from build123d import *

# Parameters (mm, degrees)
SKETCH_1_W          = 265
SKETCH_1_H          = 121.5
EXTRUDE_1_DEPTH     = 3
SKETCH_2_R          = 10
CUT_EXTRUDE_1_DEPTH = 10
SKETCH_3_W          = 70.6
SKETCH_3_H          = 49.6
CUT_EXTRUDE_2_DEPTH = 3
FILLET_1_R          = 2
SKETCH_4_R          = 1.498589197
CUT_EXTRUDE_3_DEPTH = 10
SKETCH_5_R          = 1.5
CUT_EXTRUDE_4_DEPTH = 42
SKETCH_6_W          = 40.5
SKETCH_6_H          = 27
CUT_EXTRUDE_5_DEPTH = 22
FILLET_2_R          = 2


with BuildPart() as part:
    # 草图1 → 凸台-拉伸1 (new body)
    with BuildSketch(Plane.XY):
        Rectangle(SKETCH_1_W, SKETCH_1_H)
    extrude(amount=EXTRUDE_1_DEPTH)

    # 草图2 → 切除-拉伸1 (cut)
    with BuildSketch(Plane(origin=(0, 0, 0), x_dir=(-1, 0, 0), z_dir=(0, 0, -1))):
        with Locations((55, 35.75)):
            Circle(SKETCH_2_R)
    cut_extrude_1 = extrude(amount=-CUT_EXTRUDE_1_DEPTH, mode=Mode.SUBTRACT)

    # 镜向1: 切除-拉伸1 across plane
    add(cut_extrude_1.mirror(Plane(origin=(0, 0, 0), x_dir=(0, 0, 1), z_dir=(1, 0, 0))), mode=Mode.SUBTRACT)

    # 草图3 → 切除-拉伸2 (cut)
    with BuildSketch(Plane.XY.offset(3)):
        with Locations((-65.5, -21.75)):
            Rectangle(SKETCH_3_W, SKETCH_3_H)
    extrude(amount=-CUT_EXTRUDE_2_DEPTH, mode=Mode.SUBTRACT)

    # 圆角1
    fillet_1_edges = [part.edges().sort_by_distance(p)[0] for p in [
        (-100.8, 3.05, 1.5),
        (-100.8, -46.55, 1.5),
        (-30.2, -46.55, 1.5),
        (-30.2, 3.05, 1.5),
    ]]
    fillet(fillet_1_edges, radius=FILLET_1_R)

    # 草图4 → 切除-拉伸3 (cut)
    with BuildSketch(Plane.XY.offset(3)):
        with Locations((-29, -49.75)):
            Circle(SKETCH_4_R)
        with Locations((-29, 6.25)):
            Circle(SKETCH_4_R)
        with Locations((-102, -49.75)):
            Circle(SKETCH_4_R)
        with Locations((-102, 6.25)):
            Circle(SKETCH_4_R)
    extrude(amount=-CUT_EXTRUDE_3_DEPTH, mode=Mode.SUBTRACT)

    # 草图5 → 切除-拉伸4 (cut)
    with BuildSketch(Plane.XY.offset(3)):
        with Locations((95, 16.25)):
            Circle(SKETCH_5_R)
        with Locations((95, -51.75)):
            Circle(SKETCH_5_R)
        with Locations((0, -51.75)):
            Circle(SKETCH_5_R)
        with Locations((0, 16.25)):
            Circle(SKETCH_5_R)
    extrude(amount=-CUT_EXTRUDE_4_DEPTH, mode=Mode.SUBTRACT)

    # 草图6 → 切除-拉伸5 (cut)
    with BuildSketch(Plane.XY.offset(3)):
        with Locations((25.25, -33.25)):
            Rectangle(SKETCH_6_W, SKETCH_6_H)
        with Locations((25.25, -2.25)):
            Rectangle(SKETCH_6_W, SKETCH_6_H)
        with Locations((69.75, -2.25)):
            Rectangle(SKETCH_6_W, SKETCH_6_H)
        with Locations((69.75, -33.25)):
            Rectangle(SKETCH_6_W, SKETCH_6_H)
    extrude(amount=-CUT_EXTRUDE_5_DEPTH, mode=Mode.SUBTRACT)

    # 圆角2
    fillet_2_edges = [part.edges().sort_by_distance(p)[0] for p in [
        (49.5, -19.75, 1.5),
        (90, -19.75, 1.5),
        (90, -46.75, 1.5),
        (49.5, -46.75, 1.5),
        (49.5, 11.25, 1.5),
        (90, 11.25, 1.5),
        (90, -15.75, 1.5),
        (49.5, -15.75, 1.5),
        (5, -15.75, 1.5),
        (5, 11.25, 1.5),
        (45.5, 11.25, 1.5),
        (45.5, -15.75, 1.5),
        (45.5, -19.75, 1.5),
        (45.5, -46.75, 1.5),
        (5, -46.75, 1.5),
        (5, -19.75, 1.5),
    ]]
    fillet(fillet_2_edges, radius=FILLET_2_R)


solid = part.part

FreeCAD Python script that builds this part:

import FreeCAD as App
import Part
import Sketcher


def edges_at(feature, points):
    """Names of the edges that pass closest to the given points."""
    edges = feature.Shape.Edges
    near = lambda p: min(range(len(edges)), key=lambda i: edges[i].distToShape(Part.Vertex(*p))[0])
    return sorted({f"Edge{near(p) + 1}" for p in points})

doc = App.newDocument("Part")
body = doc.addObject("PartDesign::Body", "Body")

sketch1 = doc.addObject("Sketcher::SketchObject", "Sketch")
body.addObject(sketch1)
sketch1.AttachmentSupport = (doc.XY_Plane, [""])
sketch1.MapMode = "FlatFace"
sketch1.addGeometry(Part.LineSegment(App.Vector(-132, 61, 0), App.Vector(-132, -61, 0)), False)
sketch1.addGeometry(Part.LineSegment(App.Vector(-132, -61, 0), App.Vector(132, -61, 0)), False)
sketch1.addGeometry(Part.LineSegment(App.Vector(132, -61, 0), App.Vector(132, 61, 0)), False)
sketch1.addGeometry(Part.LineSegment(App.Vector(132, 61, 0), App.Vector(-132, 61, 0)), False)
sketch1.addConstraint(Sketcher.Constraint("Coincident", 0, 2, 1, 1))
sketch1.addConstraint(Sketcher.Constraint("Coincident", 1, 2, 2, 1))
sketch1.addConstraint(Sketcher.Constraint("Coincident", 2, 2, 3, 1))
sketch1.addConstraint(Sketcher.Constraint("Coincident", 3, 2, 0, 1))
sketch1.addConstraint(Sketcher.Constraint("Vertical", 0))
sketch1.addConstraint(Sketcher.Constraint("Horizontal", 1))
sketch1.addConstraint(Sketcher.Constraint("Vertical", 2))
sketch1.addConstraint(Sketcher.Constraint("Horizontal", 3))
sketch1.addConstraint(Sketcher.Constraint("Symmetric", 0, 2, 2, 2, -1, 1))
sketch1.addConstraint(Sketcher.Constraint("DistanceX", 1, 1, 1, 2, 265.0))
sketch1.addConstraint(Sketcher.Constraint("DistanceY", 0, 2, 0, 1, 121.5))
pad1 = doc.addObject("PartDesign::Pad", "Pad")
body.addObject(pad1)
pad1.Profile = sketch1
pad1.Length = 3

sketch2 = doc.addObject("Sketcher::SketchObject", "Sketch001")
body.addObject(sketch2)
sketch2.AttachmentSupport = (doc.XY_Plane, [""])
sketch2.MapMode = "FlatFace"
sketch2.addGeometry(Part.Circle(App.Vector(-55, 36, 0), App.Vector(0, 0, 1), 10), False)
sketch2.addConstraint(Sketcher.Constraint("Diameter", 0, 20.0))
sketch2.addConstraint(Sketcher.Constraint("DistanceX", 0, 3, -1, 1, 55.0))
sketch2.addConstraint(Sketcher.Constraint("DistanceY", -1, 1, 0, 3, 35.75))
pocket1 = doc.addObject("PartDesign::Pocket", "Pocket")
body.addObject(pocket1)
pocket1.Profile = sketch2
pocket1.Length = 10
pocket1.Reversed = True
doc.recompute()

mirrored = doc.addObject("PartDesign::Mirrored", "Mirrored")
body.addObject(mirrored)
mirrored.Originals = [pocket1]
mirrored.MirrorPlane = (doc.YZ_Plane, [""])
body.Tip = mirrored

sketch3 = doc.addObject("Sketcher::SketchObject", "Sketch002")
body.addObject(sketch3)
sketch3.AttachmentSupport = (doc.XY_Plane, [""])
sketch3.MapMode = "FlatFace"
sketch3.AttachmentOffset = App.Placement(App.Vector(0, 0, 3), App.Rotation())
sketch3.addGeometry(Part.LineSegment(App.Vector(-101, 3, 0), App.Vector(-101, -47, 0)), False)
sketch3.addGeometry(Part.LineSegment(App.Vector(-101, -47, 0), App.Vector(-30, -47, 0)), False)
sketch3.addGeometry(Part.LineSegment(App.Vector(-30, -47, 0), App.Vector(-30, 3, 0)), False)
sketch3.addGeometry(Part.LineSegment(App.Vector(-30, 3, 0), App.Vector(-101, 3, 0)), False)
sketch3.addConstraint(Sketcher.Constraint("Coincident", 0, 2, 1, 1))
sketch3.addConstraint(Sketcher.Constraint("Coincident", 1, 2, 2, 1))
sketch3.addConstraint(Sketcher.Constraint("Coincident", 2, 2, 3, 1))
sketch3.addConstraint(Sketcher.Constraint("Coincident", 3, 2, 0, 1))
sketch3.addConstraint(Sketcher.Constraint("Vertical", 0))
sketch3.addConstraint(Sketcher.Constraint("Horizontal", 1))
sketch3.addConstraint(Sketcher.Constraint("Vertical", 2))
sketch3.addConstraint(Sketcher.Constraint("Horizontal", 3))
sketch3.addConstraint(Sketcher.Constraint("DistanceX", 1, 1, 1, 2, 70.6))
sketch3.addConstraint(Sketcher.Constraint("DistanceY", 0, 2, 0, 1, 49.6))
sketch3.addConstraint(Sketcher.Constraint("DistanceX", 0, 2, -1, 1, 100.8))
sketch3.addConstraint(Sketcher.Constraint("DistanceY", 0, 2, -1, 1, 46.55))
pocket2 = doc.addObject("PartDesign::Pocket", "Pocket001")
body.addObject(pocket2)
pocket2.Profile = sketch3
pocket2.Length = 3
doc.recompute()

fillet = doc.addObject("PartDesign::Fillet", "Fillet")
body.addObject(fillet)
fillet.Base = (pocket2, edges_at(pocket2, [
    (-100.8, 3.05, 1.5),
    (-100.8, -46.55, 1.5),
    (-30.2, -46.55, 1.5),
    (-30.2, 3.05, 1.5),
]))
fillet.Radius = 2

sketch4 = doc.addObject("Sketcher::SketchObject", "Sketch003")
body.addObject(sketch4)
sketch4.AttachmentSupport = (doc.XY_Plane, [""])
sketch4.MapMode = "FlatFace"
sketch4.AttachmentOffset = App.Placement(App.Vector(0, 0, 3), App.Rotation())
sketch4.addGeometry(Part.Circle(App.Vector(-29, -49.8, 0), App.Vector(0, 0, 1), 1.5), False)
sketch4.addGeometry(Part.Circle(App.Vector(-29, 6.2, 0), App.Vector(0, 0, 1), 1.5), False)
sketch4.addGeometry(Part.Circle(App.Vector(-102, -49.8, 0), App.Vector(0, 0, 1), 1.5), False)
sketch4.addGeometry(Part.Circle(App.Vector(-102, 6.2, 0), App.Vector(0, 0, 1), 1.5), False)
sketch4.addConstraint(Sketcher.Constraint("Equal", 0, 1))
sketch4.addConstraint(Sketcher.Constraint("Equal", 1, 2))
sketch4.addConstraint(Sketcher.Constraint("Equal", 2, 3))
sketch4.addConstraint(Sketcher.Constraint("Horizontal", 0, 3, 2, 3))
sketch4.addConstraint(Sketcher.Constraint("Horizontal", 1, 3, 3, 3))
sketch4.addConstraint(Sketcher.Constraint("Vertical", 0, 3, 1, 3))
sketch4.addConstraint(Sketcher.Constraint("Vertical", 2, 3, 3, 3))
sketch4.addConstraint(Sketcher.Constraint("DistanceX", 0, 3, -1, 1, 29.0))
sketch4.addConstraint(Sketcher.Constraint("DistanceX", 2, 3, -1, 1, 102.0))
sketch4.addConstraint(Sketcher.Constraint("DistanceY", 0, 3, 1, 3, 56.0))
sketch4.addConstraint(Sketcher.Constraint("Diameter", 0, 2.997178))
sketch4.addConstraint(Sketcher.Constraint("DistanceY", 0, 3, -1, 1, 49.75))
pocket3 = doc.addObject("PartDesign::Pocket", "Pocket002")
body.addObject(pocket3)
pocket3.Profile = sketch4
pocket3.Length = 10

sketch5 = doc.addObject("Sketcher::SketchObject", "Sketch004")
body.addObject(sketch5)
sketch5.AttachmentSupport = (doc.XY_Plane, [""])
sketch5.MapMode = "FlatFace"
sketch5.AttachmentOffset = App.Placement(App.Vector(0, 0, 3), App.Rotation())
sketch5.addGeometry(Part.Circle(App.Vector(95, 16.2, 0), App.Vector(0, 0, 1), 1.5), False)
sketch5.addGeometry(Part.Circle(App.Vector(95, -51.8, 0), App.Vector(0, 0, 1), 1.5), False)
sketch5.addGeometry(Part.Circle(App.Vector(0, -51.8, 0), App.Vector(0, 0, 1), 1.5), False)
sketch5.addGeometry(Part.Circle(App.Vector(0, 16.2, 0), App.Vector(0, 0, 1), 1.5), False)
sketch5.addConstraint(Sketcher.Constraint("Equal", 0, 1))
sketch5.addConstraint(Sketcher.Constraint("Equal", 1, 2))
sketch5.addConstraint(Sketcher.Constraint("Equal", 2, 3))
sketch5.addConstraint(Sketcher.Constraint("PointOnObject", 2, 3, -2))
sketch5.addConstraint(Sketcher.Constraint("PointOnObject", 3, 3, -2))
sketch5.addConstraint(Sketcher.Constraint("Horizontal", 1, 3, 2, 3))
sketch5.addConstraint(Sketcher.Constraint("Horizontal", 0, 3, 3, 3))
sketch5.addConstraint(Sketcher.Constraint("Vertical", 0, 3, 1, 3))
sketch5.addConstraint(Sketcher.Constraint("Diameter", 0, 3.0))
sketch5.addConstraint(Sketcher.Constraint("DistanceX", -1, 1, 0, 3, 95.0))
sketch5.addConstraint(Sketcher.Constraint("DistanceY", 1, 3, 0, 3, 68.0))
sketch5.addConstraint(Sketcher.Constraint("DistanceY", -1, 1, 0, 3, 16.25))
pocket4 = doc.addObject("PartDesign::Pocket", "Pocket003")
body.addObject(pocket4)
pocket4.Profile = sketch5
pocket4.Length = 42

sketch6 = doc.addObject("Sketcher::SketchObject", "Sketch005")
body.addObject(sketch6)
sketch6.AttachmentSupport = (doc.XY_Plane, [""])
sketch6.MapMode = "FlatFace"
sketch6.AttachmentOffset = App.Placement(App.Vector(0, 0, 3), App.Rotation())
sketch6.addGeometry(Part.LineSegment(App.Vector(5, -20, 0), App.Vector(5, -47, 0)), False)
sketch6.addGeometry(Part.LineSegment(App.Vector(5, -47, 0), App.Vector(46, -47, 0)), False)
sketch6.addGeometry(Part.LineSegment(App.Vector(46, -47, 0), App.Vector(46, -20, 0)), False)
sketch6.addGeometry(Part.LineSegment(App.Vector(46, -20, 0), App.Vector(5, -20, 0)), False)
sketch6.addGeometry(Part.LineSegment(App.Vector(5, 11, 0), App.Vector(5, -16, 0)), False)
sketch6.addGeometry(Part.LineSegment(App.Vector(5, -16, 0), App.Vector(46, -16, 0)), False)
sketch6.addGeometry(Part.LineSegment(App.Vector(46, -16, 0), App.Vector(46, 11, 0)), False)
sketch6.addGeometry(Part.LineSegment(App.Vector(46, 11, 0), App.Vector(5, 11, 0)), False)
sketch6.addGeometry(Part.LineSegment(App.Vector(50, 11, 0), App.Vector(50, -16, 0)), False)
sketch6.addGeometry(Part.LineSegment(App.Vector(50, -16, 0), App.Vector(90, -16, 0)), False)
sketch6.addGeometry(Part.LineSegment(App.Vector(90, -16, 0), App.Vector(90, 11, 0)), False)
sketch6.addGeometry(Part.LineSegment(App.Vector(90, 11, 0), App.Vector(50, 11, 0)), False)
sketch6.addGeometry(Part.LineSegment(App.Vector(50, -20, 0), App.Vector(50, -47, 0)), False)
sketch6.addGeometry(Part.LineSegment(App.Vector(50, -47, 0), App.Vector(90, -47, 0)), False)
sketch6.addGeometry(Part.LineSegment(App.Vector(90, -47, 0), App.Vector(90, -20, 0)), False)
sketch6.addGeometry(Part.LineSegment(App.Vector(90, -20, 0), App.Vector(50, -20, 0)), False)
sketch6.addConstraint(Sketcher.Constraint("Coincident", 0, 2, 1, 1))
sketch6.addConstraint(Sketcher.Constraint("Coincident", 1, 2, 2, 1))
sketch6.addConstraint(Sketcher.Constraint("Coincident", 2, 2, 3, 1))
sketch6.addConstraint(Sketcher.Constraint("Coincident", 3, 2, 0, 1))
sketch6.addConstraint(Sketcher.Constraint("Coincident", 4, 2, 5, 1))
sketch6.addConstraint(Sketcher.Constraint("Coincident", 5, 2, 6, 1))
sketch6.addConstraint(Sketcher.Constraint("Coincident", 6, 2, 7, 1))
sketch6.addConstraint(Sketcher.Constraint("Coincident", 7, 2, 4, 1))
sketch6.addConstraint(Sketcher.Constraint("Coincident", 8, 2, 9, 1))
sketch6.addConstraint(Sketcher.Constraint("Coincident", 9, 2, 10, 1))
sketch6.addConstraint(Sketcher.Constraint("Coincident", 10, 2, 11, 1))
sketch6.addConstraint(Sketcher.Constraint("Coincident", 11, 2, 8, 1))
sketch6.addConstraint(Sketcher.Constraint("Coincident", 12, 2, 13, 1))
sketch6.addConstraint(Sketcher.Constraint("Coincident", 13, 2, 14, 1))
sketch6.addConstraint(Sketcher.Constraint("Coincident", 14, 2, 15, 1))
sketch6.addConstraint(Sketcher.Constraint("Coincident", 15, 2, 12, 1))
sketch6.addConstraint(Sketcher.Constraint("Vertical", 0))
sketch6.addConstraint(Sketcher.Constraint("Horizontal", 1))
sketch6.addConstraint(Sketcher.Constraint("Vertical", 2))
sketch6.addConstraint(Sketcher.Constraint("Horizontal", 3))
sketch6.addConstraint(Sketcher.Constraint("Vertical", 4))
sketch6.addConstraint(Sketcher.Constraint("Horizontal", 5))
sketch6.addConstraint(Sketcher.Constraint("Vertical", 6))
sketch6.addConstraint(Sketcher.Constraint("Horizontal", 7))
sketch6.addConstraint(Sketcher.Constraint("Vertical", 8))
sketch6.addConstraint(Sketcher.Constraint("Horizontal", 9))
sketch6.addConstraint(Sketcher.Constraint("Vertical", 10))
sketch6.addConstraint(Sketcher.Constraint("Horizontal", 11))
sketch6.addConstraint(Sketcher.Constraint("Vertical", 12))
sketch6.addConstraint(Sketcher.Constraint("Horizontal", 13))
sketch6.addConstraint(Sketcher.Constraint("Vertical", 14))
sketch6.addConstraint(Sketcher.Constraint("Horizontal", 15))
sketch6.addConstraint(Sketcher.Constraint("Horizontal", 5, 2, 8, 2))
sketch6.addConstraint(Sketcher.Constraint("Horizontal", 7, 2, 10, 2))
sketch6.addConstraint(Sketcher.Constraint("Horizontal", 1, 2, 12, 2))
sketch6.addConstraint(Sketcher.Constraint("Horizontal", 3, 2, 14, 2))
sketch6.addConstraint(Sketcher.Constraint("Vertical", 3, 2, 4, 2))
sketch6.addConstraint(Sketcher.Constraint("Vertical", 2, 2, 5, 2))
sketch6.addConstraint(Sketcher.Constraint("Vertical", 11, 2, 12, 2))
sketch6.addConstraint(Sketcher.Constraint("Vertical", 10, 2, 13, 2))
sketch6.addConstraint(Sketcher.Constraint("Equal", 7, 9))
sketch6.addConstraint(Sketcher.Constraint("Equal", 2, 4))
sketch6.addConstraint(Sketcher.Constraint("DistanceY", 0, 2, 0, 1, 27.0))
sketch6.addConstraint(Sketcher.Constraint("DistanceX", 1, 1, 1, 2, 40.5))
sketch6.addConstraint(Sketcher.Constraint("DistanceX", -1, 1, 0, 2, 5.0))
sketch6.addConstraint(Sketcher.Constraint("DistanceX", -1, 1, 9, 2, 90.0))
sketch6.addConstraint(Sketcher.Constraint("DistanceY", 3, 2, 4, 2, 4.0))
sketch6.addConstraint(Sketcher.Constraint("DistanceY", 0, 2, -1, 1, 46.75))
pocket5 = doc.addObject("PartDesign::Pocket", "Pocket004")
body.addObject(pocket5)
pocket5.Profile = sketch6
pocket5.Length = 22
doc.recompute()

fillet2 = doc.addObject("PartDesign::Fillet", "Fillet001")
body.addObject(fillet2)
fillet2.Base = (pocket5, edges_at(pocket5, [
    (49.5, -19.75, 1.5),
    (90, -19.75, 1.5),
    (90, -46.75, 1.5),
    (49.5, -46.75, 1.5),
    (49.5, 11.25, 1.5),
    (90, 11.25, 1.5),
    (90, -15.75, 1.5),
    (49.5, -15.75, 1.5),
    (5, -15.75, 1.5),
    (5, 11.25, 1.5),
    (45.5, 11.25, 1.5),
    (45.5, -15.75, 1.5),
    (45.5, -19.75, 1.5),
    (45.5, -46.75, 1.5),
    (5, -46.75, 1.5),
    (5, -19.75, 1.5),
]))
fillet2.Radius = 2

doc.recompute()
